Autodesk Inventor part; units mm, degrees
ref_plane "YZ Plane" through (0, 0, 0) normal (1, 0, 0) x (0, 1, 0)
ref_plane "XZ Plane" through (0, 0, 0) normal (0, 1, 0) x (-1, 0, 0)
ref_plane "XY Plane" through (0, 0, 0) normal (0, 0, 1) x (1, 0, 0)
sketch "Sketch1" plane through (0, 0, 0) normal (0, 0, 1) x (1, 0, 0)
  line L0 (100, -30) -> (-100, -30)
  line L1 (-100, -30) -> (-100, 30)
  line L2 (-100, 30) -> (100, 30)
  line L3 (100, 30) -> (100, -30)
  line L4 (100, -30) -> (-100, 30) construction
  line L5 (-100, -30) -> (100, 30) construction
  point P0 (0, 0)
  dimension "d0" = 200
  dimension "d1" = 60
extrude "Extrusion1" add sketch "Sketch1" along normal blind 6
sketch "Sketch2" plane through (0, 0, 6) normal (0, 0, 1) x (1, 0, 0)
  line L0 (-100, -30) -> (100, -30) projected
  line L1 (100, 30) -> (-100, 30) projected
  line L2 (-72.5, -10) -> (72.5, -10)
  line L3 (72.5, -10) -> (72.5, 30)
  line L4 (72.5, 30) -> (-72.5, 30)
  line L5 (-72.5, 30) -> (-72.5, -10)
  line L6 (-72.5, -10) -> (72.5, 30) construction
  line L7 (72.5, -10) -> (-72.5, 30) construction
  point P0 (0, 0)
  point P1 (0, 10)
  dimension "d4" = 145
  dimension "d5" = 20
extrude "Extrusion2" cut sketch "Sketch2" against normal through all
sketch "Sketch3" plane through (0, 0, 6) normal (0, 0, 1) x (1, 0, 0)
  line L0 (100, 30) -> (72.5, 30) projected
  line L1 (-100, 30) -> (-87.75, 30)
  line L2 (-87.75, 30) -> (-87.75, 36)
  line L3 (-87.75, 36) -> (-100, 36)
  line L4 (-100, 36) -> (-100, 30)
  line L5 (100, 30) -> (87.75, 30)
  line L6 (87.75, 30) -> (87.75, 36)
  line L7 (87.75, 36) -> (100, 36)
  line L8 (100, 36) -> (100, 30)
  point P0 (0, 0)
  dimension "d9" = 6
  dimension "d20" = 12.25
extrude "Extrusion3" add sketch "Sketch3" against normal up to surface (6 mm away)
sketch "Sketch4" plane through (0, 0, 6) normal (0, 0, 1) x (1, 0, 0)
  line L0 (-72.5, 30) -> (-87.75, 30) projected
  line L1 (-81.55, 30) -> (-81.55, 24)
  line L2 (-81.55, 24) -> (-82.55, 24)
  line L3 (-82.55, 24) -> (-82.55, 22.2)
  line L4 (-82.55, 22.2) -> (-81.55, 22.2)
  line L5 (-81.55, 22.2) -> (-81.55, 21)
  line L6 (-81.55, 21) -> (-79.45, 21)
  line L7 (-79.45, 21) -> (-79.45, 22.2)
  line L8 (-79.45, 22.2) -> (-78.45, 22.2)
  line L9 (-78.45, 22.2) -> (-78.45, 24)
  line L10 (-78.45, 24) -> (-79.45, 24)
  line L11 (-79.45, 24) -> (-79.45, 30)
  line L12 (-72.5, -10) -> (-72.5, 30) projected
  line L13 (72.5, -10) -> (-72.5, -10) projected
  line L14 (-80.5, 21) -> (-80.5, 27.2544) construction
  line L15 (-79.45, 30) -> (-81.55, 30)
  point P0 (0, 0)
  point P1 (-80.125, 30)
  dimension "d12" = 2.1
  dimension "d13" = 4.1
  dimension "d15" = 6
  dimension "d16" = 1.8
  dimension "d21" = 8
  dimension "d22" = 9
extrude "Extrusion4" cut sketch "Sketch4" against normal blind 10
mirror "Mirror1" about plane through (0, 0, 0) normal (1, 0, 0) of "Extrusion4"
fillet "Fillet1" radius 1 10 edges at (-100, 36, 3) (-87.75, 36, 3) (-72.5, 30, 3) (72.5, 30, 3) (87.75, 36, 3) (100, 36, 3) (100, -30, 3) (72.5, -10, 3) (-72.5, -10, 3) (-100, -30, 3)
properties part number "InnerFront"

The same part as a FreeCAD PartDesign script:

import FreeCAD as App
import Part
import Sketcher

V = App.Vector
Q = App.Units.Quantity


def edges_at(feature, points):
    """Names of the edges that pass closest to the given points."""
    edges = feature.Shape.Edges
    near = lambda p: min(range(len(edges)), key=lambda i: edges[i].distToShape(Part.Vertex(*p))[0])
    return sorted({f"Edge{near(p) + 1}" for p in points})


def add_polygon(sketch, points):
    """Adds a closed chain of lines whose ends are joined by coincident constraints."""
    first, n = sketch.GeometryCount, len(points)
    for a, b in zip(points, points[1:] + points[:1]):
        sketch.addGeometry(Part.LineSegment(App.Vector(*a, 0), App.Vector(*b, 0)), False)
    for i in range(n):
        sketch.addConstraint(Sketcher.Constraint("Coincident", first + i, 2, first + (i + 1) % n, 1))

doc = App.newDocument("Part")
params = doc.addObject("Spreadsheet::Sheet", "Params")
for row, (alias, value) in enumerate([
    ("sketch1_width", "200 mm"),
    ("sketch1_height", "60 mm"),
    ("pad1_length", "6 mm"),
    ("sketch2_width", "145 mm"),
    ("sketch2_height", "40 mm"),
    ("sketch3_height", "6 mm"),
    ("sketch3_width", "12.25 mm"),
    ("pad2_length", "6 mm"),
    ("sketch4_height", "6 mm"),
    ("sketch4_width", "2.1 mm"),
    ("sketch4_height2", "1.8 mm"),
    ("sketch4_width2", "1 mm"),
    ("pocket2_length", "10 mm"),
    ("fillet_radius", "1 mm"),
], start=1):
    params.set(f"A{row}", alias)
    params.set(f"B{row}", "=" + value)
    params.setAlias(f"B{row}", alias)

body = doc.addObject("PartDesign::Body", "Body")

sketch1 = body.newObject("Sketcher::SketchObject", "Sketch")
sketch1.AttachmentSupport = (doc.getObject("XY_Plane"), [""])
sketch1.MapMode = "FlatFace"
add_polygon(sketch1, [(-100, -30), (100, -30), (100, 30), (-100, 30)])
sketch1.addConstraint([
    Sketcher.Constraint("Horizontal", 0),
    Sketcher.Constraint("Vertical", 1),
    Sketcher.Constraint("Horizontal", 2),
    Sketcher.Constraint("Vertical", 3),
    Sketcher.Constraint("Symmetric", 0, 2, 2, 2, -1, 1),
    Sketcher.Constraint("DistanceX", 0, 1, 0, 2, Q("200 mm")),
    Sketcher.Constraint("DistanceY", 1, 1, 1, 2, Q("60 mm")),
])
sketch1.setExpression("Constraints[9]", "Params.sketch1_width")
sketch1.setExpression("Constraints[10]", "Params.sketch1_height")
pad1 = body.newObject("PartDesign::Pad", "Pad")
pad1.Profile = sketch1
pad1.setExpression("Length", "Params.pad1_length")

sketch2 = body.newObject("Sketcher::SketchObject", "Sketch001")
sketch2.AttachmentSupport = (doc.getObject("XY_Plane"), [""])
sketch2.MapMode = "FlatFace"
sketch2.AttachmentOffset = App.Placement(V(0, 0, 6), App.Rotation())
add_polygon(sketch2, [(72, -10), (72, 30), (-72, 30), (-72, -10)])
sketch2.addConstraint([
    Sketcher.Constraint("Vertical", 0),
    Sketcher.Constraint("Horizontal", 1),
    Sketcher.Constraint("Vertical", 2),
    Sketcher.Constraint("Horizontal", 3),
    Sketcher.Constraint("DistanceX", 1, 2, 1, 1, Q("145 mm")),
    Sketcher.Constraint("DistanceY", 0, 1, 0, 2, Q("40 mm")),
    Sketcher.Constraint("DistanceY", -1, 1, 0, 2, Q("30 mm")),
    Sketcher.Constraint("DistanceX", -1, 1, 0, 2, Q("72.5 mm")),
])
sketch2.setExpression("Constraints[8]", "Params.sketch2_width")
sketch2.setExpression("Constraints[9]", "Params.sketch2_height")
pocket1 = body.newObject("PartDesign::Pocket", "Pocket")
pocket1.Profile = sketch2
pocket1.Type = "ThroughAll"

sketch3 = body.newObject("Sketcher::SketchObject", "Sketch002")
sketch3.AttachmentSupport = (doc.getObject("XY_Plane"), [""])
sketch3.MapMode = "FlatFace"
sketch3.AttachmentOffset = App.Placement(V(0, 0, 6), App.Rotation())
add_polygon(sketch3, [(88, 30), (100, 30), (100, 36), (88, 36)])
add_polygon(sketch3, [(-100, 36), (-100, 30), (-88, 30), (-88, 36)])
sketch3.addConstraint([
    Sketcher.Constraint("Horizontal", 0),
    Sketcher.Constraint("Vertical", 1),
    Sketcher.Constraint("Horizontal", 2),
    Sketcher.Constraint("Vertical", 3),
    Sketcher.Constraint("Vertical", 4),
    Sketcher.Constraint("Horizontal", 5),
    Sketcher.Constraint("Vertical", 6),
    Sketcher.Constraint("Horizontal", 7),
    Sketcher.Constraint("Symmetric", 0, 2, 4, 2, -2),
    Sketcher.Constraint("Symmetric", 2, 2, 6, 2, -2),
    Sketcher.Constraint("DistanceY", 1, 1, 1, 2, Q("6 mm")),
    Sketcher.Constraint("DistanceX", 0, 1, 0, 2, Q("12.25 mm")),
    Sketcher.Constraint("DistanceX", -1, 1, 0, 2, Q("100 mm")),
    Sketcher.Constraint("DistanceY", -1, 1, 0, 2, Q("30 mm")),
])
sketch3.setExpression("Constraints[18]", "Params.sketch3_height")
sketch3.setExpression("Constraints[19]", "Params.sketch3_width")
pad2 = body.newObject("PartDesign::Pad", "Pad001")
pad2.Profile = sketch3
pad2.setExpression("Length", "Params.pad2_length")
pad2.Reversed = True

sketch4 = body.newObject("Sketcher::SketchObject", "Sketch003")
sketch4.AttachmentSupport = (doc.getObject("XY_Plane"), [""])
sketch4.MapMode = "FlatFace"
sketch4.AttachmentOffset = App.Placement(V(0, 0, 6), App.Rotation())
add_polygon(sketch4, [(-79.5, 24), (-79.5, 30), (-81.5, 30), (-81.5, 24), (-82.5, 24), (-82.5, 22.2), (-81.5, 22.2), (-81.5, 21), (-79.5, 21), (-79.5, 22.2), (-78.5, 22.2), (-78.5, 24)])
sketch4.addConstraint([
    Sketcher.Constraint("Vertical", 0),
    Sketcher.Constraint("Horizontal", 1),
    Sketcher.Constraint("Vertical", 2),
    Sketcher.Constraint("Horizontal", 3),
    Sketcher.Constraint("Vertical", 4),
    Sketcher.Constraint("Horizontal", 5),
    Sketcher.Constraint("Vertical", 6),
    Sketcher.Constraint("Horizontal", 7),
    Sketcher.Constraint("Vertical", 8),
    Sketcher.Constraint("Horizontal", 9),
    Sketcher.Constraint("Vertical", 10),
    Sketcher.Constraint("Horizontal", 11),
    Sketcher.Constraint("Horizontal", 5, 2, 8, 2),
    Sketcher.Constraint("Horizontal", 3, 2, 10, 2),
    Sketcher.Constraint("Vertical", 2, 2, 5, 2),
    Sketcher.Constraint("Vertical", 0, 2, 7, 2),
    Sketcher.Constraint("Equal", 5, 9),
    Sketcher.Constraint("DistanceY", 0, 1, 0, 2, Q("6 mm")),
    Sketcher.Constraint("DistanceX", 1, 2, 1, 1, Q("2.1 mm")),
    Sketcher.Constraint("DistanceY", 4, 2, 4, 1, Q("1.8 mm")),
    Sketcher.Constraint("DistanceY", 6, 2, 1, 2, Q("9 mm")),
    Sketcher.Constraint("DistanceX", 3, 2, 3, 1, Q("1 mm")),
    Sketcher.Constraint("DistanceY", -1, 1, 0, 2, Q("30 mm")),
    Sketcher.Constraint("DistanceX", 0, 2, -1, 1, Q("79.45 mm")),
])
sketch4.setExpression("Constraints[29]", "Params.sketch4_height")
sketch4.setExpression("Constraints[30]", "Params.sketch4_width")
sketch4.setExpression("Constraints[31]", "Params.sketch4_height2")
sketch4.setExpression("Constraints[33]", "Params.sketch4_width2")
pocket2 = body.newObject("PartDesign::Pocket", "Pocket001")
pocket2.Profile = sketch4
pocket2.setExpression("Length", "Params.pocket2_length")
doc.recompute()

mirrored = body.newObject("PartDesign::Mirrored", "Mirrored")
mirrored.Originals = [pocket2]
mirrored.MirrorPlane = (doc.getObject("YZ_Plane"), [""])
body.Tip = mirrored
doc.recompute()

fillet = body.newObject("PartDesign::Fillet", "Fillet")
fillet.Base = (mirrored, edges_at(mirrored, [
    (-100, 36, 3),
    (-87.75, 36, 3),
    (-72.5, 30, 3),
    (72.5, 30, 3),
    (87.75, 36, 3),
    (100, 36, 3),
    (100, -30, 3),
    (72.5, -10, 3),
    (-72.5, -10, 3),
    (-100, -30, 3),
]))
fillet.setExpression("Radius", "Params.fillet_radius")

doc.recompute()
